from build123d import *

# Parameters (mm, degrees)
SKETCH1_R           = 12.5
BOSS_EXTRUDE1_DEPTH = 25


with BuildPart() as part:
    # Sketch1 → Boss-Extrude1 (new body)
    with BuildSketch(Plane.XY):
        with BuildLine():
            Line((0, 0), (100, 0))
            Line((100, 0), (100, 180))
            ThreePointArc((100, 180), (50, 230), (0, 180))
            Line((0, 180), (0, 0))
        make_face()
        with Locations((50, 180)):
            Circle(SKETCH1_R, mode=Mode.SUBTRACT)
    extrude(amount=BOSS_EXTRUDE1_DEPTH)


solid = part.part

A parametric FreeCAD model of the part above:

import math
import FreeCAD as App
import Part
import Sketcher
from FreeCAD import Vector
Q = App.Units.Quantity

doc = App.newDocument("Part")
body = doc.addObject("PartDesign::Body", "Body")

# Sketch on XY plane
sketch1 = doc.addObject("Sketcher::SketchObject", "Sketch")
body.addObject(sketch1)
sketch1.AttachmentSupport = (doc.XY_Plane, [""])
sketch1.MapMode = "FlatFace"
sketch1.addGeometry([
    Part.LineSegment(Vector(0, 0, 0), Vector(100, 0, 0)),  # 0
    Part.LineSegment(Vector(100, 0, 0), Vector(100, 180, 0)),  # 1
    Part.ArcOfCircle(Part.Circle(Vector(50, 180, 0), Vector(0, 0, 1), 50), math.radians(0), math.radians(180)),  # 2
    Part.LineSegment(Vector(0, 180, 0), Vector(0, 0, 0)),  # 3
    Part.Circle(Vector(50, 180, 0), Vector(0, 0, 1), 12),  # 4
], False)
sketch1.addConstraint([
    Sketcher.Constraint("Coincident", 0, 2, 1, 1),
    Sketcher.Constraint("Tangent", 1, 2, 2, 1),
    Sketcher.Constraint("Tangent", 2, 2, 3, 1),
    Sketcher.Constraint("Coincident", 3, 2, 0, 1),
    Sketcher.Constraint("Horizontal", 0),
    Sketcher.Constraint("Vertical", 1),
    Sketcher.Constraint("Vertical", 3),
    Sketcher.Constraint("Coincident", 3, 2, -1, 1),
    Sketcher.Constraint("Coincident", 4, 3, 2, 3),
    Sketcher.Constraint("Diameter", 4, Q("25 mm")),
    Sketcher.Constraint("Radius", 2, Q("50 mm")),
    Sketcher.Constraint("DistanceY", 1, 1, 1, 2, Q("180 mm")),
])
pad1 = doc.addObject("PartDesign::Pad", "Pad")
body.addObject(pad1)
pad1.Profile = sketch1
pad1.Length = 25

doc.recompute()
